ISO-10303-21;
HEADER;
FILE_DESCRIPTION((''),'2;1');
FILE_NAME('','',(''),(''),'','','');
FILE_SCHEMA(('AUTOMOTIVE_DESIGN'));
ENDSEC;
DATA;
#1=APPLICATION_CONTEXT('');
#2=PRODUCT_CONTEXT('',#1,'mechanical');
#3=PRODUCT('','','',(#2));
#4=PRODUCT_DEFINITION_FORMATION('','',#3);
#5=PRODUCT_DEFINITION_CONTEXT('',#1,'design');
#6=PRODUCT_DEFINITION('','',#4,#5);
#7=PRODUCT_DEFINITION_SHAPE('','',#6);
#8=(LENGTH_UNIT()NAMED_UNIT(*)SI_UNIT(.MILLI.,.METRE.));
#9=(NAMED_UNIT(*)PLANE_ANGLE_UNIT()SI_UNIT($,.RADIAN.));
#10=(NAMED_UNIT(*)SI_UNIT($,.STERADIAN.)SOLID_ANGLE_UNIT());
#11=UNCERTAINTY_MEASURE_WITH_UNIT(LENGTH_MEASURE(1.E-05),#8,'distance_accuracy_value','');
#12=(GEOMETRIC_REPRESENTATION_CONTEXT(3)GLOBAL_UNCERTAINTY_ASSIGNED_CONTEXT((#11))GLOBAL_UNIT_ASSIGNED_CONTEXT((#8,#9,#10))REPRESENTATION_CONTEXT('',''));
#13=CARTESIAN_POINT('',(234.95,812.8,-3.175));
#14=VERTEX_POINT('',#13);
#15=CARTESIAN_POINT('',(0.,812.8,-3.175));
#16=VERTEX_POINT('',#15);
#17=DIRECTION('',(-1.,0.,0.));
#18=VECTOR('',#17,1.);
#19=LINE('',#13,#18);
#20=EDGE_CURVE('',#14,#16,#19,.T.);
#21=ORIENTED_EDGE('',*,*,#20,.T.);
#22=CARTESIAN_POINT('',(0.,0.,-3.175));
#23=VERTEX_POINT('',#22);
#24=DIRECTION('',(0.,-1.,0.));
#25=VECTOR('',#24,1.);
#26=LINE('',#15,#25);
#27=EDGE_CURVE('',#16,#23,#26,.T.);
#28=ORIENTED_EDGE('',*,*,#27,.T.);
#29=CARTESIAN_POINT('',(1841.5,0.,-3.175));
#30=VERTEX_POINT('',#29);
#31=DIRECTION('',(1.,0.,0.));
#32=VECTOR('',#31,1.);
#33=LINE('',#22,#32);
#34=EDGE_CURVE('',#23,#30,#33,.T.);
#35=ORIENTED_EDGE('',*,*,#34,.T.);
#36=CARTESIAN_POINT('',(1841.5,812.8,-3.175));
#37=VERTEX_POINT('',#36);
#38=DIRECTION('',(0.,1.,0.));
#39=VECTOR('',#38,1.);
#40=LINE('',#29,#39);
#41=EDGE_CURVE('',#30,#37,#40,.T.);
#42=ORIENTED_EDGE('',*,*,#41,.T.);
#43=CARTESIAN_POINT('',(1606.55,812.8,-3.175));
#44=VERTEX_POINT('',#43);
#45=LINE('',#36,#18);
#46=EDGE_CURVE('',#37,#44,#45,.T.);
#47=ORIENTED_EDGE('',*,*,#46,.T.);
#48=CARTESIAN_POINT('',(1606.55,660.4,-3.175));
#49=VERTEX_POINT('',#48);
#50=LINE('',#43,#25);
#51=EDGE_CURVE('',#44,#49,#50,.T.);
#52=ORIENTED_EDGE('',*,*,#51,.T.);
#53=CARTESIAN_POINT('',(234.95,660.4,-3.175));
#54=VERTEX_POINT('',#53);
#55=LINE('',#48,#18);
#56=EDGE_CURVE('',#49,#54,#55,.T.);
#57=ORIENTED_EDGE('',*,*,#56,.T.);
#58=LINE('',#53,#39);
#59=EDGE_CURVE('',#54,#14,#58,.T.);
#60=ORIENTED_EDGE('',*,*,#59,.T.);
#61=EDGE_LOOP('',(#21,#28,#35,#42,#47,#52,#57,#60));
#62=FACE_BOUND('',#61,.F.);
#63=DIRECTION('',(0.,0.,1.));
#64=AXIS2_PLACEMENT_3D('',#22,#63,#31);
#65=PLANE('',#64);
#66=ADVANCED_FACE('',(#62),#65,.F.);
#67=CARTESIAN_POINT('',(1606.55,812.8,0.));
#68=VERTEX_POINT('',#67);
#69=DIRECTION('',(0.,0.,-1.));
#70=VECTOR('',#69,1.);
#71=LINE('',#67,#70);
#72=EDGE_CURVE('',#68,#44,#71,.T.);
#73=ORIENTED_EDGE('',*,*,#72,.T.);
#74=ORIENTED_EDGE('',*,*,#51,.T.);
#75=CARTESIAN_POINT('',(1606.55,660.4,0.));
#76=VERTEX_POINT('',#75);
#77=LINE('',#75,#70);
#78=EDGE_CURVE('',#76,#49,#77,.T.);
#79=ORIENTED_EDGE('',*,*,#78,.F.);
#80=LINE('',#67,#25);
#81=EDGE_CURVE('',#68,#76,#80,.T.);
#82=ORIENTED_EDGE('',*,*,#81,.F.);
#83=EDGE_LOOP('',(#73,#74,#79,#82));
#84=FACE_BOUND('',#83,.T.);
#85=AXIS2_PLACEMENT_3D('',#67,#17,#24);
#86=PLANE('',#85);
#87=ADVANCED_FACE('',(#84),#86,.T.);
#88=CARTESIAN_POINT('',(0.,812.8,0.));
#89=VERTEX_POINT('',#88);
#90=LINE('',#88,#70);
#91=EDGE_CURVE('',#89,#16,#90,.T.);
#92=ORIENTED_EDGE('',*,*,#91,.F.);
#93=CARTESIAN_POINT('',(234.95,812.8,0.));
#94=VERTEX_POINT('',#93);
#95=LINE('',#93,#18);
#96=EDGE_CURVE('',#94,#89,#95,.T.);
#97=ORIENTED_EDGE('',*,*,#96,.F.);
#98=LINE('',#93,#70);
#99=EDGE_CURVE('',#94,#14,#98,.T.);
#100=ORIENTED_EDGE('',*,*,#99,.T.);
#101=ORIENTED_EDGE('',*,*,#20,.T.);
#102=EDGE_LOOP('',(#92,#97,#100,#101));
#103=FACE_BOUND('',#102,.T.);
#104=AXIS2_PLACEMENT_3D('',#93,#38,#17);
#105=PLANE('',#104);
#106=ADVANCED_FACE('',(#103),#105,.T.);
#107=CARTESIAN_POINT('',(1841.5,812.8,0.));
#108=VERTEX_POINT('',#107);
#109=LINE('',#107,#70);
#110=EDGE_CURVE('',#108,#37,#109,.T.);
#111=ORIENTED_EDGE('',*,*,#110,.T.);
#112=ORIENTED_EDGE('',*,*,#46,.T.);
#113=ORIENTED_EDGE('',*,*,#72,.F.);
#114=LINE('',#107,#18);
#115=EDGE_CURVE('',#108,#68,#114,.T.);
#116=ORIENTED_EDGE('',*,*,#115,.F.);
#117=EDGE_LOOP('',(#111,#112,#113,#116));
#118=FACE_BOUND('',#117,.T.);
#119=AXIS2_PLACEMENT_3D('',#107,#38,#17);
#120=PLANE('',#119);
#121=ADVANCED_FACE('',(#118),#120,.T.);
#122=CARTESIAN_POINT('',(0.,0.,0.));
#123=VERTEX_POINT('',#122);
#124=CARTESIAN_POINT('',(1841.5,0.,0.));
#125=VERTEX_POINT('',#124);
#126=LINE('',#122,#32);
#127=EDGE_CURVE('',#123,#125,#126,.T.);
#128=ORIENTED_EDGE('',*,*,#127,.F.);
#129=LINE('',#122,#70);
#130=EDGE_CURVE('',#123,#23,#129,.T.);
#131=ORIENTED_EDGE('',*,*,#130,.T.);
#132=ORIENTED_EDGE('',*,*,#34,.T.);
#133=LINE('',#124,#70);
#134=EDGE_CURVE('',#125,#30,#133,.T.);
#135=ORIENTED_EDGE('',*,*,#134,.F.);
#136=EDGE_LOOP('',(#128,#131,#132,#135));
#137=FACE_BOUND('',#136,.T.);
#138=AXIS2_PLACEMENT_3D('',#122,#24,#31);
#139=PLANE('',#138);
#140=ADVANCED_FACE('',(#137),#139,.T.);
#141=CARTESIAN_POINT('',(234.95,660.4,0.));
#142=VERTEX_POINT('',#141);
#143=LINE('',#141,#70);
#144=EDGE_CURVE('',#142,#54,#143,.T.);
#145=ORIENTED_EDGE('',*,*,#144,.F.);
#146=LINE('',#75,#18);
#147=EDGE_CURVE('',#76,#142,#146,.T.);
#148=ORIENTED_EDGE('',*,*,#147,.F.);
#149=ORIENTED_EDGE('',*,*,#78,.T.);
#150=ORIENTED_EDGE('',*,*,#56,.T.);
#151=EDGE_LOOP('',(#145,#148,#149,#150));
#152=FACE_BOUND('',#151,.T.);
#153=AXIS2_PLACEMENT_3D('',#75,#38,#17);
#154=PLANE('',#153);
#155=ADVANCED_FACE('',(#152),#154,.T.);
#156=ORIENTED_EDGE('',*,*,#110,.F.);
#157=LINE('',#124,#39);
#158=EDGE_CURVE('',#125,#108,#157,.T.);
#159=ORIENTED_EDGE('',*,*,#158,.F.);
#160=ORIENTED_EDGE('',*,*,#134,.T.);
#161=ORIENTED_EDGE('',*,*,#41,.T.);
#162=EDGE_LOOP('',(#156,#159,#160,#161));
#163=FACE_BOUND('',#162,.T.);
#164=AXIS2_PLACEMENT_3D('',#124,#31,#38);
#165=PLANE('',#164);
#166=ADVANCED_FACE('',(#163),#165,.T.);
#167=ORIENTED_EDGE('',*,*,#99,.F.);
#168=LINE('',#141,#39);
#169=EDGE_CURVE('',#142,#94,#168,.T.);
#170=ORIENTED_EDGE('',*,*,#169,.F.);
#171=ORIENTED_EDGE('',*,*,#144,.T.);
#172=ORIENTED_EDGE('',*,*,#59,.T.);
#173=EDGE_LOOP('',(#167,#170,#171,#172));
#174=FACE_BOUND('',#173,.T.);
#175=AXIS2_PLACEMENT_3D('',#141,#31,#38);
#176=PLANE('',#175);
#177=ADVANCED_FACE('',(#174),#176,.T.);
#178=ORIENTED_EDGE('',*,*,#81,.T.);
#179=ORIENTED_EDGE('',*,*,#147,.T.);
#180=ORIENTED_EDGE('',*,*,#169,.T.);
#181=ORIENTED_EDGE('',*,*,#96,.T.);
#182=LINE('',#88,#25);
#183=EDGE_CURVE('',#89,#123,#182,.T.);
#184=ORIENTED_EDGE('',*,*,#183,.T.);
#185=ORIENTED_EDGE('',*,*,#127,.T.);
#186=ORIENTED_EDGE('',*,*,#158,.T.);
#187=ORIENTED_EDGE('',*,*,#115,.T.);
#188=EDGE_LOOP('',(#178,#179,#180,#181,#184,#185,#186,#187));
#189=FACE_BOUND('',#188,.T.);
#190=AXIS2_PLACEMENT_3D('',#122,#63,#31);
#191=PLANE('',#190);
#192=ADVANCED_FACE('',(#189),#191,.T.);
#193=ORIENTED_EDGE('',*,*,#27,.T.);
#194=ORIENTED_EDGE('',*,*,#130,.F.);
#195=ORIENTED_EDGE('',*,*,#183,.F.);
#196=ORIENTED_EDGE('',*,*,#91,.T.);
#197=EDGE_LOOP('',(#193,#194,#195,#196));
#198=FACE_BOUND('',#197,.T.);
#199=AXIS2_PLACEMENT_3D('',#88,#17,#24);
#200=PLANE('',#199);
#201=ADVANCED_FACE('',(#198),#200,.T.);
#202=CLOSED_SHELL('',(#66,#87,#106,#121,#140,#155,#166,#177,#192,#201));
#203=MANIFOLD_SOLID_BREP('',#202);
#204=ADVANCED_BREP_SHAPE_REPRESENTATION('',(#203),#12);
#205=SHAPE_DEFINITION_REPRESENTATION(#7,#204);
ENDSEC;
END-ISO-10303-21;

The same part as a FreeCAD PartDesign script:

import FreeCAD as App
import Part
import Sketcher

V = App.Vector
Q = App.Units.Quantity


def add_polygon(sketch, points):
    """Adds a closed chain of lines whose ends are joined by coincident constraints."""
    first, n = sketch.GeometryCount, len(points)
    for a, b in zip(points, points[1:] + points[:1]):
        sketch.addGeometry(Part.LineSegment(App.Vector(*a, 0), App.Vector(*b, 0)), False)
    for i in range(n):
        sketch.addConstraint(Sketcher.Constraint("Coincident", first + i, 2, first + (i + 1) % n, 1))

doc = App.newDocument("Part")
params = doc.addObject("Spreadsheet::Sheet", "Params")
for row, (alias, value) in enumerate([
    ("sketch1_height", "32 in"),
    ("sketch1_height2", "6 in"),
    ("sketch1_width", "72.5 in"),
    ("sketch1_width2", "9.25 in"),
    ("pad1_length", "0.125 in"),
], start=1):
    params.set(f"A{row}", alias)
    params.set(f"B{row}", "=" + value)
    params.setAlias(f"B{row}", alias)

body = doc.addObject("PartDesign::Body", "Body")

# Sketch on XY plane
sketch1 = body.newObject("Sketcher::SketchObject", "Sketch")
sketch1.AttachmentSupport = (doc.getObject("XY_Plane"), [""])
sketch1.MapMode = "FlatFace"
add_polygon(sketch1, [(0, 812.8), (0, 0), (1841.5, 0), (1841.5, 812.8), (1606.55, 812.8), (1606.55, 660.4), (234.95, 660.4), (234.95, 812.8)])  # lines 0-7
sketch1.addConstraint([
    Sketcher.Constraint("Vertical", 0),
    Sketcher.Constraint("Horizontal", 1),
    Sketcher.Constraint("Vertical", 2),
    Sketcher.Constraint("Horizontal", 3),
    Sketcher.Constraint("Vertical", 4),
    Sketcher.Constraint("Horizontal", 5),
    Sketcher.Constraint("Vertical", 6),
    Sketcher.Constraint("Horizontal", 7),
    Sketcher.Constraint("Coincident", 0, 2, -1, 1),
    Sketcher.Constraint("Horizontal", 3, 2, 6, 2),
    Sketcher.Constraint("Equal", 3, 7),
    Sketcher.Constraint("DistanceY", 0, 2, 0, 1, Q("32 in")),
    Sketcher.Constraint("DistanceY", 4, 2, 4, 1, Q("6 in")),
    Sketcher.Constraint("DistanceX", 1, 1, 1, 2, Q("72.5 in")),
    Sketcher.Constraint("DistanceX", 3, 2, 3, 1, Q("9.25 in")),
])
sketch1.setExpression("Constraints[19]", "Params.sketch1_height")
sketch1.setExpression("Constraints[20]", "Params.sketch1_height2")
sketch1.setExpression("Constraints[21]", "Params.sketch1_width")
sketch1.setExpression("Constraints[22]", "Params.sketch1_width2")
pad1 = body.newObject("PartDesign::Pad", "Pad")
pad1.Profile = sketch1
pad1.setExpression("Length", "Params.pad1_length")
pad1.Reversed = True

doc.recompute()
